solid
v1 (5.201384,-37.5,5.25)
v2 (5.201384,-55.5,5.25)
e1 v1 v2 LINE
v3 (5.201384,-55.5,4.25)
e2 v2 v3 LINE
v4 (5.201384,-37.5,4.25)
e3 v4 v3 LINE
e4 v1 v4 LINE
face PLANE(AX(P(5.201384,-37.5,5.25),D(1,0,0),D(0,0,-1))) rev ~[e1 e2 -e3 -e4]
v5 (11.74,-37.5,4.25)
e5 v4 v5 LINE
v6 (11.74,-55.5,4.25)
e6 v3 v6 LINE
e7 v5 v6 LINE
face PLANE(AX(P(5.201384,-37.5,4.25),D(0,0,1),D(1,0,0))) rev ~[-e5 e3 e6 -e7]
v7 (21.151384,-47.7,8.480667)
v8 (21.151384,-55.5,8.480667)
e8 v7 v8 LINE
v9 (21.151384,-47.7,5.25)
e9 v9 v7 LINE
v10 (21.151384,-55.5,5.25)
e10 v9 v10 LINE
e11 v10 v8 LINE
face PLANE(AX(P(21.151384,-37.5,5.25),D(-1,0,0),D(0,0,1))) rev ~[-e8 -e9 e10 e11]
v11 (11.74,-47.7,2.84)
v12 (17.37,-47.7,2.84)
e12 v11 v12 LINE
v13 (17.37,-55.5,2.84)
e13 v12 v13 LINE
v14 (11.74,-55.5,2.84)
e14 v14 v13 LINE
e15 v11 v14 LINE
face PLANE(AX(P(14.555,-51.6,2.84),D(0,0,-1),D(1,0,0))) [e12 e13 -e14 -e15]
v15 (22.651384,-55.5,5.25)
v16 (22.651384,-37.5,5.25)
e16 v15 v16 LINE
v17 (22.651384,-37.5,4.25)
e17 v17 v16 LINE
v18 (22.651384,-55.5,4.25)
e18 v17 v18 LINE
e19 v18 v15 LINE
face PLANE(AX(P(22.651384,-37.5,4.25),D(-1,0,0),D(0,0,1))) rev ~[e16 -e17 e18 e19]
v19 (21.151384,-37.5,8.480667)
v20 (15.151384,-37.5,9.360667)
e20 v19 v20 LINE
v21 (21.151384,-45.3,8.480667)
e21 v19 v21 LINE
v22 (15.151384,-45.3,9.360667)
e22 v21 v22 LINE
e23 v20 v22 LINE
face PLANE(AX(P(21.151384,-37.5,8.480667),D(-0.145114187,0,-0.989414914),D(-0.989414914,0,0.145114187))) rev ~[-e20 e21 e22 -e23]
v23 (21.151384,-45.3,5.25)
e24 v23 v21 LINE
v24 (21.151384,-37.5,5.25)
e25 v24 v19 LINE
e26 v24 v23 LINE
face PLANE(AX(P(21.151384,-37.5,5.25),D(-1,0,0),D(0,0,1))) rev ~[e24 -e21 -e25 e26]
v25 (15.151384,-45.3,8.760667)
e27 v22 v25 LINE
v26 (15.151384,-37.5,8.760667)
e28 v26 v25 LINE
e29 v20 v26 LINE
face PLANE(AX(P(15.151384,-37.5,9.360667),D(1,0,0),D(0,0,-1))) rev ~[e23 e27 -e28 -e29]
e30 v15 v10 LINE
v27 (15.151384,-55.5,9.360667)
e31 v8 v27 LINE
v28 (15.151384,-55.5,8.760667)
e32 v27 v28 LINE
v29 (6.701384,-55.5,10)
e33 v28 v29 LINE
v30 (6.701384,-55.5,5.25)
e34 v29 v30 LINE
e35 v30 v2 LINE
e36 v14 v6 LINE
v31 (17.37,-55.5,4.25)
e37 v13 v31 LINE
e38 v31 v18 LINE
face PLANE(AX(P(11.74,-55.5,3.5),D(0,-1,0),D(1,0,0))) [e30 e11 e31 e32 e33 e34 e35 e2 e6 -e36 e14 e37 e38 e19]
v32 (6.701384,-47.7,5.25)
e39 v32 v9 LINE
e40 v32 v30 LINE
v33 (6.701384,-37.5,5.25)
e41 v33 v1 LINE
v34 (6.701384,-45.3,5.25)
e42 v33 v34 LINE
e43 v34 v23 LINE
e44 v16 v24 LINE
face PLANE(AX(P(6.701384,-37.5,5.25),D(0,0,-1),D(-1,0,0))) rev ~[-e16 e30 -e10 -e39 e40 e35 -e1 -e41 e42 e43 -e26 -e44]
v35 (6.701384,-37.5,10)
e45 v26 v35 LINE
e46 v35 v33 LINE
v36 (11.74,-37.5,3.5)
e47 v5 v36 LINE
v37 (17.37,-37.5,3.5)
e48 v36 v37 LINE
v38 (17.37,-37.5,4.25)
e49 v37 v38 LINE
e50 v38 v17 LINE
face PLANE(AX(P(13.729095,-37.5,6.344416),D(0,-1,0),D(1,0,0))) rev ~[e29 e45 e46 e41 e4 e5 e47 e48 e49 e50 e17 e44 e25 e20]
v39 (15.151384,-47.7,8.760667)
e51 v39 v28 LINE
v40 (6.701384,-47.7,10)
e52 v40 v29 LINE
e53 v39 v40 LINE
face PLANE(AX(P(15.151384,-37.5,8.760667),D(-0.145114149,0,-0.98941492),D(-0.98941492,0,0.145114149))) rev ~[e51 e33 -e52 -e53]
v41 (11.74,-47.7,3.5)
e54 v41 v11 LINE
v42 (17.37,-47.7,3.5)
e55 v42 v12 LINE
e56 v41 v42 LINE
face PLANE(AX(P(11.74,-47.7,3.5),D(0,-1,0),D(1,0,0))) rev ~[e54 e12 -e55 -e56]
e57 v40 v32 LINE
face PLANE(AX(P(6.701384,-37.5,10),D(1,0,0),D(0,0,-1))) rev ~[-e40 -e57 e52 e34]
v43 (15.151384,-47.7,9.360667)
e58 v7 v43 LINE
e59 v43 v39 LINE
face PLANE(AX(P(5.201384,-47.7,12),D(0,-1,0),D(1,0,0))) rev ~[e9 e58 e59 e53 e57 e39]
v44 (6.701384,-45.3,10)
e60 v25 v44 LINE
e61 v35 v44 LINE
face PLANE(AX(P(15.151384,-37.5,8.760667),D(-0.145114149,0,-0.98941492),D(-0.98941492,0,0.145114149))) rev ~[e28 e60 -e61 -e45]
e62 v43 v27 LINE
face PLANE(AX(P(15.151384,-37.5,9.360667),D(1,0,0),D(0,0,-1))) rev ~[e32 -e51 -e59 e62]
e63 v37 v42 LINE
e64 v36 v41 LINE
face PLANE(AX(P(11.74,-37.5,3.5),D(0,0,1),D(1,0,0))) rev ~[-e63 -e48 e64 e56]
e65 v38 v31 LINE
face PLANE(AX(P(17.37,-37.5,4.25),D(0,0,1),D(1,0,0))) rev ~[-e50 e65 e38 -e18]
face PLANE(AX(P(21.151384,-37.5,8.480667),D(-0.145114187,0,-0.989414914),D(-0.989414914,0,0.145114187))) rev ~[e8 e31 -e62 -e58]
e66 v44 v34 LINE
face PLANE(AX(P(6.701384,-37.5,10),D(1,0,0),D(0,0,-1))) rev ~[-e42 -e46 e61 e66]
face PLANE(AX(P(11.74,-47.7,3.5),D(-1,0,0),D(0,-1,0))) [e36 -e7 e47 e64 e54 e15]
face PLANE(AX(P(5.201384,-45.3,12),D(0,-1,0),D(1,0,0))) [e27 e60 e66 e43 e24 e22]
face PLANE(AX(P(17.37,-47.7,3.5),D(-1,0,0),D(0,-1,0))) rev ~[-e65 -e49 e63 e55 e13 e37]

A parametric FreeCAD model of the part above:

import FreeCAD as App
import Part
import Sketcher
Q = App.Units.Quantity


def add_polygon(sketch, points):
    """Adds a closed chain of lines whose ends are joined by coincident constraints."""
    first, n = sketch.GeometryCount, len(points)
    for a, b in zip(points, points[1:] + points[:1]):
        sketch.addGeometry(Part.LineSegment(App.Vector(*a, 0), App.Vector(*b, 0)), False)
    for i in range(n):
        sketch.addConstraint(Sketcher.Constraint("Coincident", first + i, 2, first + (i + 1) % n, 1))

doc = App.newDocument("Part")
body = doc.addObject("PartDesign::Body", "Body")

sketch1 = body.newObject("Sketcher::SketchObject", "Sketch")
sketch1.AttachmentSupport = (doc.getObject("XZ_Plane"), [""])
sketch1.MapMode = "FlatFace"
add_polygon(sketch1, [(21.2, 8.5), (15.2, 9.4), (15.2, 8.8), (6.7, 10), (6.7, 5.2), (5.2, 5.2), (5.2, 4.2), (11.7, 4.2), (11.7, 3.5), (17.4, 3.5), (17.4, 4.2), (22.7, 4.2), (22.7, 5.2), (21.2, 5.2)])
sketch1.addConstraint([
    Sketcher.Constraint("Vertical", 1),
    Sketcher.Constraint("Vertical", 3),
    Sketcher.Constraint("Horizontal", 4),
    Sketcher.Constraint("Vertical", 5),
    Sketcher.Constraint("Horizontal", 6),
    Sketcher.Constraint("Vertical", 7),
    Sketcher.Constraint("Horizontal", 8),
    Sketcher.Constraint("Vertical", 9),
    Sketcher.Constraint("Horizontal", 10),
    Sketcher.Constraint("Vertical", 11),
    Sketcher.Constraint("Horizontal", 12),
    Sketcher.Constraint("Vertical", 13),
    Sketcher.Constraint("Parallel", 0, 2),
    Sketcher.Constraint("Horizontal", 6, 2, 9, 2),
    Sketcher.Constraint("Horizontal", 4, 2, 11, 2),
    Sketcher.Constraint("Equal", 4, 12),
    Sketcher.Constraint("DistanceY", 5, 2, 5, 1, Q("1 mm")),
    Sketcher.Constraint("DistanceX", 4, 2, 4, 1, Q("1.5 mm")),
    Sketcher.Constraint("DistanceY", 1, 2, 1, 1, Q("0.6 mm")),
    Sketcher.Constraint("DistanceY", -1, 1, 2, 2, Q("10 mm")),
    Sketcher.Constraint("DistanceX", 1, 2, 12, 2, Q("6 mm")),
    Sketcher.Constraint("DistanceX", 8, 1, 8, 2, Q("5.63 mm")),
    Sketcher.Constraint("DistanceY", 3, 2, 3, 1, Q("4.75 mm")),
    Sketcher.Constraint("DistanceY", 7, 2, 7, 1, Q("0.75 mm")),
    Sketcher.Constraint("DistanceX", -1, 1, 6, 2, Q("11.74 mm")),
    Sketcher.Constraint("DistanceX", 2, 2, 0, 2, Q("8.45 mm")),
    Sketcher.Constraint("DistanceY", 13, 2, 1, 2, Q("0.28 mm")),
    Sketcher.Constraint("DistanceX", 6, 1, 6, 2, Q("6.538616 mm")),
])
pad1 = body.newObject("PartDesign::Pad", "Pad")
pad1.Profile = sketch1
pad1.Length = 18

sketch2 = body.newObject("Sketcher::SketchObject", "Sketch001")
sketch2.AttachmentSupport = (doc.getObject("XY_Plane"), [""])
sketch2.MapMode = "FlatFace"
sketch2.AttachmentOffset = App.Placement(App.Vector(0, 0, 12), App.Rotation())
add_polygon(sketch2, [(5.2, -7.8), (5.2, -10.2), (22.7, -10.2), (22.7, -7.8)])
sketch2.addConstraint([
    Sketcher.Constraint("Vertical", 0),
    Sketcher.Constraint("Horizontal", 1),
    Sketcher.Constraint("Vertical", 2),
    Sketcher.Constraint("Horizontal", 3),
    Sketcher.Constraint("DistanceY", 0, 2, 0, 1, Q("2.4 mm")),
    Sketcher.Constraint("DistanceX", 1, 1, 1, 2, Q("17.45 mm")),
    Sketcher.Constraint("DistanceY", 0, 2, -1, 1, Q("10.2 mm")),
    Sketcher.Constraint("DistanceX", -1, 1, 0, 2, Q("5.201384 mm")),
])
pocket1 = body.newObject("PartDesign::Pocket", "Pocket")
pocket1.Profile = sketch2
pocket1.Length = 6.75

sketch3 = body.newObject("Sketcher::SketchObject", "Sketch002")
sketch3.AttachmentSupport = (doc.getObject("XY_Plane"), [""])
sketch3.MapMode = "FlatFace"
sketch3.AttachmentOffset = App.Placement(App.Vector(0, 0, 3.5), App.Rotation())
add_polygon(sketch3, [(12, -18), (12, -10), (17, -10), (17, -18)])
sketch3.addConstraint([
    Sketcher.Constraint("Vertical", 0),
    Sketcher.Constraint("Horizontal", 1),
    Sketcher.Constraint("Vertical", 2),
    Sketcher.Constraint("Horizontal", 3),
    Sketcher.Constraint("DistanceY", 0, 1, 0, 2, Q("7.8 mm")),
    Sketcher.Constraint("DistanceY", 2, 2, -1, 1, Q("18 mm")),
    Sketcher.Constraint("DistanceX", 1, 1, 1, 2, Q("5.63 mm")),
    Sketcher.Constraint("DistanceX", -1, 1, 0, 2, Q("11.74 mm")),
])
pad2 = body.newObject("PartDesign::Pad", "Pad001")
pad2.Profile = sketch3
pad2.Length = 0.66
pad2.Reversed = True
body2 = doc.addObject("PartDesign::Body", "Body001")
doc.recompute()

body.Placement = App.Placement(App.Vector(0, -37.5, 0), App.Rotation(App.Vector(0, 0, 1), 0))
boolean = body2.newObject("PartDesign::Boolean", "Boolean")
boolean.Type = "Fuse"
boolean.addObjects([body])

doc.recompute()
